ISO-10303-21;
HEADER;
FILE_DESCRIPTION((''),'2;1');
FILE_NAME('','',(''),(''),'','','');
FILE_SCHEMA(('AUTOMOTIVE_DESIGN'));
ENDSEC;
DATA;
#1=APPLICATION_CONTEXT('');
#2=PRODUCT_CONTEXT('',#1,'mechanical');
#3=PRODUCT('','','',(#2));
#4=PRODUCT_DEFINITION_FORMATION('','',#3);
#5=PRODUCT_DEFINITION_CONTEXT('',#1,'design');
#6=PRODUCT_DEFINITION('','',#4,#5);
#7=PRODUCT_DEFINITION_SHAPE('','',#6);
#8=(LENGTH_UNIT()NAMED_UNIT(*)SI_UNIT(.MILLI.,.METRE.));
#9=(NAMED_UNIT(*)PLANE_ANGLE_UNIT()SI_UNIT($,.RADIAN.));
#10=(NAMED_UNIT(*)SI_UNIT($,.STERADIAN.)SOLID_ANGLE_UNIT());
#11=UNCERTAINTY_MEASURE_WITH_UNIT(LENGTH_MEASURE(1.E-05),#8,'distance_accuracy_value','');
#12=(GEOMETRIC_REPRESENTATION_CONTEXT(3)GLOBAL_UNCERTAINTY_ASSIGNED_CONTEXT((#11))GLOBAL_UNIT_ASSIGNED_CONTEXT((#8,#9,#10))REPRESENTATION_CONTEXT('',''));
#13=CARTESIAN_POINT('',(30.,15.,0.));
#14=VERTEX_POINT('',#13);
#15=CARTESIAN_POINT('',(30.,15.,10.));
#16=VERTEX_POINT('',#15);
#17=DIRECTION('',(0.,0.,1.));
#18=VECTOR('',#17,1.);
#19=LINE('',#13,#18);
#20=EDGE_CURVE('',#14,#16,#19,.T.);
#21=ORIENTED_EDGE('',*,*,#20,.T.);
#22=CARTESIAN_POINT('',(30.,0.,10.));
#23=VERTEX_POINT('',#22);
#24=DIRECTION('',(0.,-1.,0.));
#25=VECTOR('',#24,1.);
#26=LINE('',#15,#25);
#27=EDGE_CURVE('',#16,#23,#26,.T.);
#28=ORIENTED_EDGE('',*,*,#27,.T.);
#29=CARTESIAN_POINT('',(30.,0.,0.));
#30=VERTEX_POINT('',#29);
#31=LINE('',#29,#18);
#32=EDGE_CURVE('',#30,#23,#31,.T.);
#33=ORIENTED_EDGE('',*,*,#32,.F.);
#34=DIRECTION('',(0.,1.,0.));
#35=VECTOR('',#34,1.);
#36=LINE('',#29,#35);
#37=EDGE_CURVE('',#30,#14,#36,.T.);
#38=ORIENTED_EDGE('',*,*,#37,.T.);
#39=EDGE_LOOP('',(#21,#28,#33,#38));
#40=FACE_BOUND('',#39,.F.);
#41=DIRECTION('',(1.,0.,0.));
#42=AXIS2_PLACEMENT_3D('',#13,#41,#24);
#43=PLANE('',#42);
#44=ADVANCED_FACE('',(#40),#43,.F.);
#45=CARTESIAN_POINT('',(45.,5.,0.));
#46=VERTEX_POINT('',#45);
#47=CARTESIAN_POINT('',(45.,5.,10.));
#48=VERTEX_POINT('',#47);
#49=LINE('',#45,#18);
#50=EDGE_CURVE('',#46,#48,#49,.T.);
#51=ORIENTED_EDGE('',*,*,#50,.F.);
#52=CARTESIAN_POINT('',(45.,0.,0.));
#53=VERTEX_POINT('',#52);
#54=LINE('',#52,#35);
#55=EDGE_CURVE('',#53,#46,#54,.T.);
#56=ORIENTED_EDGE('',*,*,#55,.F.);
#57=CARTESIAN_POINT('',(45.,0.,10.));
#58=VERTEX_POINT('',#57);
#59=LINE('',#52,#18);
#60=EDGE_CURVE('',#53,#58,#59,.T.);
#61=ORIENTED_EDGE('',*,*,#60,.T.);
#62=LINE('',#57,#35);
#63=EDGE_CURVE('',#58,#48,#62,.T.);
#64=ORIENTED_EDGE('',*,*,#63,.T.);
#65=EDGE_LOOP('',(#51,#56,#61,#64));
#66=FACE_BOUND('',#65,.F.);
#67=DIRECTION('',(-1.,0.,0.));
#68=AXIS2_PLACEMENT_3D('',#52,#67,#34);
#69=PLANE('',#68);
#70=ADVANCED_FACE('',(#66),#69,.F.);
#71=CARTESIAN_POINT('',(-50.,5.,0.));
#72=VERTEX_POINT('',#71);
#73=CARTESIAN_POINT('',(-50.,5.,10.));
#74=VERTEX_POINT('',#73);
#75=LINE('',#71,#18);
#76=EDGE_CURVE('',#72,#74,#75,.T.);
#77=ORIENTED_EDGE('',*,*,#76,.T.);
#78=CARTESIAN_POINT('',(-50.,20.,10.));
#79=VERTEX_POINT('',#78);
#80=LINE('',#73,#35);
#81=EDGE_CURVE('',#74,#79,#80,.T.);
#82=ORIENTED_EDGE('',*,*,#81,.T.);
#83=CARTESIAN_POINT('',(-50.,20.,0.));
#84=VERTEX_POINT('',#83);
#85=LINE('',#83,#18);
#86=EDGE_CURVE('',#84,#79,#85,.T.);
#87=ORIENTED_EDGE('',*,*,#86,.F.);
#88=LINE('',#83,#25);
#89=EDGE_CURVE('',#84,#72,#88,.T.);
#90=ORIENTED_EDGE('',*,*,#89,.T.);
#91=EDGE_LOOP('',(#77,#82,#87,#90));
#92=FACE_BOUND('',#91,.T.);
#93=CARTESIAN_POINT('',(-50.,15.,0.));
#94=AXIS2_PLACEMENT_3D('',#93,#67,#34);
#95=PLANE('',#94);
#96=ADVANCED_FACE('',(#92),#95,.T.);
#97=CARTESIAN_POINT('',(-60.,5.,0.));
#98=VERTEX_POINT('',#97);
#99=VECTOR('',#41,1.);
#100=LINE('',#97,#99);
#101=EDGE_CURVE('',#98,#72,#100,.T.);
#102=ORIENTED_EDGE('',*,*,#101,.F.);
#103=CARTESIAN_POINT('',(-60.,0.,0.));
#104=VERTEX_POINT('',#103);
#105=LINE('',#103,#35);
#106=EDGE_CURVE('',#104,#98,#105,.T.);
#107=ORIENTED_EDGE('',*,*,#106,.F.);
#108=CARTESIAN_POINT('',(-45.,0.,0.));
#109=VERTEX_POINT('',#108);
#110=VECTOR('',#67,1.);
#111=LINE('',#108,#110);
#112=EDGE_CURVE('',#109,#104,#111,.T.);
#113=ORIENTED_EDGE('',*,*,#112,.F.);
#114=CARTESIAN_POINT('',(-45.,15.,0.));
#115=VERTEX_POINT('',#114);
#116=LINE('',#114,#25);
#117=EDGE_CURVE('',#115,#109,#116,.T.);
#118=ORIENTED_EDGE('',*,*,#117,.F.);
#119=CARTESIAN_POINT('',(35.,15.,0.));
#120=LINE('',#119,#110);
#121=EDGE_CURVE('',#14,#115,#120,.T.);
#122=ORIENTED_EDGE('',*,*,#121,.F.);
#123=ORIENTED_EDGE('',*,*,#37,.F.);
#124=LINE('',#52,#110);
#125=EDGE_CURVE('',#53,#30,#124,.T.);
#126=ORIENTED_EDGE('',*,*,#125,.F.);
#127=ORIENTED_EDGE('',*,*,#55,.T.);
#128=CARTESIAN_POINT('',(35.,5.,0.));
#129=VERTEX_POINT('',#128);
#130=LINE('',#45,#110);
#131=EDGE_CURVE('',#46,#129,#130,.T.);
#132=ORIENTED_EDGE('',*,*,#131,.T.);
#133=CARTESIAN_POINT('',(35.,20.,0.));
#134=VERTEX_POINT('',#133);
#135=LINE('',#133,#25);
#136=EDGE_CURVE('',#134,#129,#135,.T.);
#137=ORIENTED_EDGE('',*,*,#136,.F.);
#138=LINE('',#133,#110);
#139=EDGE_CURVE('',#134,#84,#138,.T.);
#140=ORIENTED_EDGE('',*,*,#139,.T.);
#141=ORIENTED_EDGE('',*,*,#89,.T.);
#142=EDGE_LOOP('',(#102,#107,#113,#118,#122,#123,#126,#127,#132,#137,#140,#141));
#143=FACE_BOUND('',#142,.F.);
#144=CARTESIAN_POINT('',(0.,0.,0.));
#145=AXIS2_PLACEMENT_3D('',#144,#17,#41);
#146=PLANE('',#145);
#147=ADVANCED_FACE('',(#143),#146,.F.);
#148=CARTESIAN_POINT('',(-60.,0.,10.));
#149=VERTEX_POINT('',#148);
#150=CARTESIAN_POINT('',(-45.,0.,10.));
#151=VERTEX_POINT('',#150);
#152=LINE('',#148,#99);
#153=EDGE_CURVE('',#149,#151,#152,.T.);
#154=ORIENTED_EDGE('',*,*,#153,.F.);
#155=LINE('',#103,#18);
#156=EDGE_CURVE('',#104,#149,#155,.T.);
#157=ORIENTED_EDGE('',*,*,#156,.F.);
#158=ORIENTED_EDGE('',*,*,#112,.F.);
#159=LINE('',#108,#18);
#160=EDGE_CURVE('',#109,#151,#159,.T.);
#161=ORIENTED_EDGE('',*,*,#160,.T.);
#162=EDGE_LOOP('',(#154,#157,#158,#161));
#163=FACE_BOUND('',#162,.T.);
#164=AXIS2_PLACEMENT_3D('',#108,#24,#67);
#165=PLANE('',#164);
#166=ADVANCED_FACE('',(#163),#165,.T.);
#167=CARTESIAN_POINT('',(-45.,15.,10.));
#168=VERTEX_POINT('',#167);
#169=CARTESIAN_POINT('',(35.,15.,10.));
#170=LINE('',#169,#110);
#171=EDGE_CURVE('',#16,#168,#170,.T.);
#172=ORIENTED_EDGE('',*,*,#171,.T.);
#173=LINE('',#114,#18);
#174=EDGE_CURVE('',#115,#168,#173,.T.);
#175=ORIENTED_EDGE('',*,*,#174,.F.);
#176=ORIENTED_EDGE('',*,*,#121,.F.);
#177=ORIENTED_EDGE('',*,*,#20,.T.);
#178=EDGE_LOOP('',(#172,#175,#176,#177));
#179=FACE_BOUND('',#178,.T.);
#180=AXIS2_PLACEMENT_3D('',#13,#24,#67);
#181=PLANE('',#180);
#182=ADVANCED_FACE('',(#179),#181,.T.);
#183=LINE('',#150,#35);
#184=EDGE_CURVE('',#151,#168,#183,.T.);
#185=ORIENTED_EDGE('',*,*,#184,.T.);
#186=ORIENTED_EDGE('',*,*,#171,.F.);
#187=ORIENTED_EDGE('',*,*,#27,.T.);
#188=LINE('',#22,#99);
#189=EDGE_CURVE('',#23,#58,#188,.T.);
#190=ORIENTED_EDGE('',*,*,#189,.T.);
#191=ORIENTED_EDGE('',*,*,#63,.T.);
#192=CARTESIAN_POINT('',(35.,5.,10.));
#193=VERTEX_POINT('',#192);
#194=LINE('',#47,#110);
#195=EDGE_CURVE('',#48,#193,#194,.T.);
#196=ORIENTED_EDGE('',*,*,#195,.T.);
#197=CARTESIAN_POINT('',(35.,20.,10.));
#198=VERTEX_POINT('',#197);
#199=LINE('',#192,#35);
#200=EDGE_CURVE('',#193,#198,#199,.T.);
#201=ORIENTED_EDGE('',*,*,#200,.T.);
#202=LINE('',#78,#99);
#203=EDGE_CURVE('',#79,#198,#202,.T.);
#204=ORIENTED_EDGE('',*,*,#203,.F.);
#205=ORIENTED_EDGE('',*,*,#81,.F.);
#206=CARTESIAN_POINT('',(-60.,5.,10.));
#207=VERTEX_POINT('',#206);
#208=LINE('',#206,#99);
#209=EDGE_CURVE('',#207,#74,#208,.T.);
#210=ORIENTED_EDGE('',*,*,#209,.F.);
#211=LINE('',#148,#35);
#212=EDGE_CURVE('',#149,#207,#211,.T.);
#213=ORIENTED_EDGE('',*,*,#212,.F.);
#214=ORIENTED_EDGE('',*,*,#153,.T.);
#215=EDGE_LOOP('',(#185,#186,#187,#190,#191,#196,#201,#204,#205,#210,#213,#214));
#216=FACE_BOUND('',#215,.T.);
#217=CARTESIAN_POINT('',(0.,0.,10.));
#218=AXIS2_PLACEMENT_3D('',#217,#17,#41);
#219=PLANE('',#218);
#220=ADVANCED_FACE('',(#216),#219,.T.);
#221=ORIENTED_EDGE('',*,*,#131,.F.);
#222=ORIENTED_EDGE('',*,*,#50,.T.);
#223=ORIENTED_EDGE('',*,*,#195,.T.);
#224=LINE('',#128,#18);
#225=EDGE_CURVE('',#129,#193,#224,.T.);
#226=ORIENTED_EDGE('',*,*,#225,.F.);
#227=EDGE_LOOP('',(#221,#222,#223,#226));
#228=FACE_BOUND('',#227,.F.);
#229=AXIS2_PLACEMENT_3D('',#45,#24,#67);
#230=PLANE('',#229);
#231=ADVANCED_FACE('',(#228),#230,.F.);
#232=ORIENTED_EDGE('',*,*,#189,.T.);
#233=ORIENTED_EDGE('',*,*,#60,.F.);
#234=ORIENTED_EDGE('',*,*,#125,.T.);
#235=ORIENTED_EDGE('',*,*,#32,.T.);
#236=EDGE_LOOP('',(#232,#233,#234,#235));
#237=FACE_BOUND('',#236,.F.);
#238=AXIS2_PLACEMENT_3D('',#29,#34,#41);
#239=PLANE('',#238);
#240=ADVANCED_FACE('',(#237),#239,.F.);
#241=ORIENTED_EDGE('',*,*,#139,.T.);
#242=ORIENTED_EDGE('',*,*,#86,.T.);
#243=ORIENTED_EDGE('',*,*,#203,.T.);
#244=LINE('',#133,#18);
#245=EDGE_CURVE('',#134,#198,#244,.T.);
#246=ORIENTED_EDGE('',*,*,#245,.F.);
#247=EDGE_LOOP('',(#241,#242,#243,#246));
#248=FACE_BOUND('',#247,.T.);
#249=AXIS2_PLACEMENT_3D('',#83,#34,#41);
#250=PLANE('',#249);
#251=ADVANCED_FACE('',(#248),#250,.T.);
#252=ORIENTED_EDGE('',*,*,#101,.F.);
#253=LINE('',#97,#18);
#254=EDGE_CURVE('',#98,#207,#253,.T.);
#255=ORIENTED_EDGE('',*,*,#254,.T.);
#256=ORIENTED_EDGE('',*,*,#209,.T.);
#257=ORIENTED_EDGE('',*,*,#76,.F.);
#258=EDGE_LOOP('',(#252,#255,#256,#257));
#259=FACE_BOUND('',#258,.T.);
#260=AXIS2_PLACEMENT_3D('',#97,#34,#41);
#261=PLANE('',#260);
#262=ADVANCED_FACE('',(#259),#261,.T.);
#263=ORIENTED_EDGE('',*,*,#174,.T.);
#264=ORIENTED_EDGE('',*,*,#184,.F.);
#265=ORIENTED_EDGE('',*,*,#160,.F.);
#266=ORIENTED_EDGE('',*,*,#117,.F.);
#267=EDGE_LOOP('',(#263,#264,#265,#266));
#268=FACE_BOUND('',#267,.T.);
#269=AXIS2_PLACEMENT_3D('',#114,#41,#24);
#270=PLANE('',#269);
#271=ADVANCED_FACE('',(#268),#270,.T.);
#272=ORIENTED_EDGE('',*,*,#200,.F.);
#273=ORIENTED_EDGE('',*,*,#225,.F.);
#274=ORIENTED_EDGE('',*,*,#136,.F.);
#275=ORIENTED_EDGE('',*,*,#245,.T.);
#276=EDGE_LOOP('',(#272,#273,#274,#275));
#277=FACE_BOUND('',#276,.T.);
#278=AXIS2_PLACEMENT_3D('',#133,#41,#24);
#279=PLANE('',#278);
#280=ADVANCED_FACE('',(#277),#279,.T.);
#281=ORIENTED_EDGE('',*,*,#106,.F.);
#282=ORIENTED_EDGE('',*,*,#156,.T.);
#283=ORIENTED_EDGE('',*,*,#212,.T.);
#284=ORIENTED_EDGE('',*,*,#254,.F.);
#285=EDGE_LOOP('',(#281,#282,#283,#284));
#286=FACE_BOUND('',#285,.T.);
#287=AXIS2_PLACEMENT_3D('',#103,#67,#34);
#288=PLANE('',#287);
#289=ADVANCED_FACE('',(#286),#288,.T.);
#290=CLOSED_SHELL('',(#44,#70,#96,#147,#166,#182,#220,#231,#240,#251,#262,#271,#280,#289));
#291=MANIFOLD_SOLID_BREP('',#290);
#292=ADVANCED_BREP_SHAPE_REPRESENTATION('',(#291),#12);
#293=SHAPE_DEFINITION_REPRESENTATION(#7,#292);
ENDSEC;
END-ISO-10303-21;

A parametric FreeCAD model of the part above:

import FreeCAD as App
import Part
import Sketcher


def add_polygon(sketch, points):
    """Adds a closed chain of lines whose ends are joined by coincident constraints."""
    first, n = sketch.GeometryCount, len(points)
    for a, b in zip(points, points[1:] + points[:1]):
        sketch.addGeometry(Part.LineSegment(App.Vector(*a, 0), App.Vector(*b, 0)), False)
    for i in range(n):
        sketch.addConstraint(Sketcher.Constraint("Coincident", first + i, 2, first + (i + 1) % n, 1))

doc = App.newDocument("Part")
params = doc.addObject("Spreadsheet::Sheet", "Params")
for row, (alias, value) in enumerate([
    ("sketch1_width", "15 mm"),
    ("sketch1_width2", "85 mm"),
    ("sketch1_height", "5 mm"),
    ("pad1_length", "10 mm"),
], start=1):
    params.set(f"A{row}", alias)
    params.set(f"B{row}", "=" + value)
    params.setAlias(f"B{row}", alias)

body = doc.addObject("PartDesign::Body", "Body")

# Sketch on XY plane
sketch1 = body.newObject("Sketcher::SketchObject", "Sketch")
sketch1.AttachmentSupport = (doc.getObject("XY_Plane"), [""])
sketch1.MapMode = "FlatFace"
add_polygon(sketch1, [(-50, 20), (-50, 5), (-60, 5), (-60, 0), (-45, 0), (-45, 15), (30, 15), (30, 0), (45, 0), (45, 5), (35, 5), (35, 20)])  # lines 0-11
sketch1.addConstraint([
    Sketcher.Constraint("Vertical", 0),
    Sketcher.Constraint("Horizontal", 1),
    Sketcher.Constraint("Vertical", 2),
    Sketcher.Constraint("Horizontal", 3),
    Sketcher.Constraint("Vertical", 4),
    Sketcher.Constraint("Horizontal", 5),
    Sketcher.Constraint("Vertical", 6),
    Sketcher.Constraint("Horizontal", 7),
    Sketcher.Constraint("Vertical", 8),
    Sketcher.Constraint("Horizontal", 9),
    Sketcher.Constraint("Vertical", 10),
    Sketcher.Constraint("Horizontal", 11),
    Sketcher.Constraint("Symmetric", 3, 2, 7, 2, -1, 1),
    Sketcher.Constraint("PointOnObject", 2, 2, -1),
    Sketcher.Constraint("Horizontal", 1, 2, 8, 2),
    Sketcher.Constraint("Equal", 3, 7),
    Sketcher.Constraint("Equal", 1, 9),
    Sketcher.Constraint("Equal", 7, 0),
    Sketcher.Constraint("Equal", 0, 4),
    Sketcher.Constraint("DistanceX", 3, 1, 3, 2, 15.0),
    Sketcher.Constraint("DistanceX", 11, 2, 11, 1, 85.0),
    Sketcher.Constraint("DistanceY", 2, 2, 2, 1, 5.0),
    Sketcher.Constraint("DistanceX", 0, 2, 3, 2, 5.0),
])
sketch1.setExpression("Constraints[31]", "Params.sketch1_width")
sketch1.setExpression("Constraints[32]", "Params.sketch1_width2")
sketch1.setExpression("Constraints[33]", "Params.sketch1_height")
pad1 = body.newObject("PartDesign::Pad", "Pad")
pad1.Profile = sketch1
pad1.setExpression("Length", "Params.pad1_length")

doc.recompute()
